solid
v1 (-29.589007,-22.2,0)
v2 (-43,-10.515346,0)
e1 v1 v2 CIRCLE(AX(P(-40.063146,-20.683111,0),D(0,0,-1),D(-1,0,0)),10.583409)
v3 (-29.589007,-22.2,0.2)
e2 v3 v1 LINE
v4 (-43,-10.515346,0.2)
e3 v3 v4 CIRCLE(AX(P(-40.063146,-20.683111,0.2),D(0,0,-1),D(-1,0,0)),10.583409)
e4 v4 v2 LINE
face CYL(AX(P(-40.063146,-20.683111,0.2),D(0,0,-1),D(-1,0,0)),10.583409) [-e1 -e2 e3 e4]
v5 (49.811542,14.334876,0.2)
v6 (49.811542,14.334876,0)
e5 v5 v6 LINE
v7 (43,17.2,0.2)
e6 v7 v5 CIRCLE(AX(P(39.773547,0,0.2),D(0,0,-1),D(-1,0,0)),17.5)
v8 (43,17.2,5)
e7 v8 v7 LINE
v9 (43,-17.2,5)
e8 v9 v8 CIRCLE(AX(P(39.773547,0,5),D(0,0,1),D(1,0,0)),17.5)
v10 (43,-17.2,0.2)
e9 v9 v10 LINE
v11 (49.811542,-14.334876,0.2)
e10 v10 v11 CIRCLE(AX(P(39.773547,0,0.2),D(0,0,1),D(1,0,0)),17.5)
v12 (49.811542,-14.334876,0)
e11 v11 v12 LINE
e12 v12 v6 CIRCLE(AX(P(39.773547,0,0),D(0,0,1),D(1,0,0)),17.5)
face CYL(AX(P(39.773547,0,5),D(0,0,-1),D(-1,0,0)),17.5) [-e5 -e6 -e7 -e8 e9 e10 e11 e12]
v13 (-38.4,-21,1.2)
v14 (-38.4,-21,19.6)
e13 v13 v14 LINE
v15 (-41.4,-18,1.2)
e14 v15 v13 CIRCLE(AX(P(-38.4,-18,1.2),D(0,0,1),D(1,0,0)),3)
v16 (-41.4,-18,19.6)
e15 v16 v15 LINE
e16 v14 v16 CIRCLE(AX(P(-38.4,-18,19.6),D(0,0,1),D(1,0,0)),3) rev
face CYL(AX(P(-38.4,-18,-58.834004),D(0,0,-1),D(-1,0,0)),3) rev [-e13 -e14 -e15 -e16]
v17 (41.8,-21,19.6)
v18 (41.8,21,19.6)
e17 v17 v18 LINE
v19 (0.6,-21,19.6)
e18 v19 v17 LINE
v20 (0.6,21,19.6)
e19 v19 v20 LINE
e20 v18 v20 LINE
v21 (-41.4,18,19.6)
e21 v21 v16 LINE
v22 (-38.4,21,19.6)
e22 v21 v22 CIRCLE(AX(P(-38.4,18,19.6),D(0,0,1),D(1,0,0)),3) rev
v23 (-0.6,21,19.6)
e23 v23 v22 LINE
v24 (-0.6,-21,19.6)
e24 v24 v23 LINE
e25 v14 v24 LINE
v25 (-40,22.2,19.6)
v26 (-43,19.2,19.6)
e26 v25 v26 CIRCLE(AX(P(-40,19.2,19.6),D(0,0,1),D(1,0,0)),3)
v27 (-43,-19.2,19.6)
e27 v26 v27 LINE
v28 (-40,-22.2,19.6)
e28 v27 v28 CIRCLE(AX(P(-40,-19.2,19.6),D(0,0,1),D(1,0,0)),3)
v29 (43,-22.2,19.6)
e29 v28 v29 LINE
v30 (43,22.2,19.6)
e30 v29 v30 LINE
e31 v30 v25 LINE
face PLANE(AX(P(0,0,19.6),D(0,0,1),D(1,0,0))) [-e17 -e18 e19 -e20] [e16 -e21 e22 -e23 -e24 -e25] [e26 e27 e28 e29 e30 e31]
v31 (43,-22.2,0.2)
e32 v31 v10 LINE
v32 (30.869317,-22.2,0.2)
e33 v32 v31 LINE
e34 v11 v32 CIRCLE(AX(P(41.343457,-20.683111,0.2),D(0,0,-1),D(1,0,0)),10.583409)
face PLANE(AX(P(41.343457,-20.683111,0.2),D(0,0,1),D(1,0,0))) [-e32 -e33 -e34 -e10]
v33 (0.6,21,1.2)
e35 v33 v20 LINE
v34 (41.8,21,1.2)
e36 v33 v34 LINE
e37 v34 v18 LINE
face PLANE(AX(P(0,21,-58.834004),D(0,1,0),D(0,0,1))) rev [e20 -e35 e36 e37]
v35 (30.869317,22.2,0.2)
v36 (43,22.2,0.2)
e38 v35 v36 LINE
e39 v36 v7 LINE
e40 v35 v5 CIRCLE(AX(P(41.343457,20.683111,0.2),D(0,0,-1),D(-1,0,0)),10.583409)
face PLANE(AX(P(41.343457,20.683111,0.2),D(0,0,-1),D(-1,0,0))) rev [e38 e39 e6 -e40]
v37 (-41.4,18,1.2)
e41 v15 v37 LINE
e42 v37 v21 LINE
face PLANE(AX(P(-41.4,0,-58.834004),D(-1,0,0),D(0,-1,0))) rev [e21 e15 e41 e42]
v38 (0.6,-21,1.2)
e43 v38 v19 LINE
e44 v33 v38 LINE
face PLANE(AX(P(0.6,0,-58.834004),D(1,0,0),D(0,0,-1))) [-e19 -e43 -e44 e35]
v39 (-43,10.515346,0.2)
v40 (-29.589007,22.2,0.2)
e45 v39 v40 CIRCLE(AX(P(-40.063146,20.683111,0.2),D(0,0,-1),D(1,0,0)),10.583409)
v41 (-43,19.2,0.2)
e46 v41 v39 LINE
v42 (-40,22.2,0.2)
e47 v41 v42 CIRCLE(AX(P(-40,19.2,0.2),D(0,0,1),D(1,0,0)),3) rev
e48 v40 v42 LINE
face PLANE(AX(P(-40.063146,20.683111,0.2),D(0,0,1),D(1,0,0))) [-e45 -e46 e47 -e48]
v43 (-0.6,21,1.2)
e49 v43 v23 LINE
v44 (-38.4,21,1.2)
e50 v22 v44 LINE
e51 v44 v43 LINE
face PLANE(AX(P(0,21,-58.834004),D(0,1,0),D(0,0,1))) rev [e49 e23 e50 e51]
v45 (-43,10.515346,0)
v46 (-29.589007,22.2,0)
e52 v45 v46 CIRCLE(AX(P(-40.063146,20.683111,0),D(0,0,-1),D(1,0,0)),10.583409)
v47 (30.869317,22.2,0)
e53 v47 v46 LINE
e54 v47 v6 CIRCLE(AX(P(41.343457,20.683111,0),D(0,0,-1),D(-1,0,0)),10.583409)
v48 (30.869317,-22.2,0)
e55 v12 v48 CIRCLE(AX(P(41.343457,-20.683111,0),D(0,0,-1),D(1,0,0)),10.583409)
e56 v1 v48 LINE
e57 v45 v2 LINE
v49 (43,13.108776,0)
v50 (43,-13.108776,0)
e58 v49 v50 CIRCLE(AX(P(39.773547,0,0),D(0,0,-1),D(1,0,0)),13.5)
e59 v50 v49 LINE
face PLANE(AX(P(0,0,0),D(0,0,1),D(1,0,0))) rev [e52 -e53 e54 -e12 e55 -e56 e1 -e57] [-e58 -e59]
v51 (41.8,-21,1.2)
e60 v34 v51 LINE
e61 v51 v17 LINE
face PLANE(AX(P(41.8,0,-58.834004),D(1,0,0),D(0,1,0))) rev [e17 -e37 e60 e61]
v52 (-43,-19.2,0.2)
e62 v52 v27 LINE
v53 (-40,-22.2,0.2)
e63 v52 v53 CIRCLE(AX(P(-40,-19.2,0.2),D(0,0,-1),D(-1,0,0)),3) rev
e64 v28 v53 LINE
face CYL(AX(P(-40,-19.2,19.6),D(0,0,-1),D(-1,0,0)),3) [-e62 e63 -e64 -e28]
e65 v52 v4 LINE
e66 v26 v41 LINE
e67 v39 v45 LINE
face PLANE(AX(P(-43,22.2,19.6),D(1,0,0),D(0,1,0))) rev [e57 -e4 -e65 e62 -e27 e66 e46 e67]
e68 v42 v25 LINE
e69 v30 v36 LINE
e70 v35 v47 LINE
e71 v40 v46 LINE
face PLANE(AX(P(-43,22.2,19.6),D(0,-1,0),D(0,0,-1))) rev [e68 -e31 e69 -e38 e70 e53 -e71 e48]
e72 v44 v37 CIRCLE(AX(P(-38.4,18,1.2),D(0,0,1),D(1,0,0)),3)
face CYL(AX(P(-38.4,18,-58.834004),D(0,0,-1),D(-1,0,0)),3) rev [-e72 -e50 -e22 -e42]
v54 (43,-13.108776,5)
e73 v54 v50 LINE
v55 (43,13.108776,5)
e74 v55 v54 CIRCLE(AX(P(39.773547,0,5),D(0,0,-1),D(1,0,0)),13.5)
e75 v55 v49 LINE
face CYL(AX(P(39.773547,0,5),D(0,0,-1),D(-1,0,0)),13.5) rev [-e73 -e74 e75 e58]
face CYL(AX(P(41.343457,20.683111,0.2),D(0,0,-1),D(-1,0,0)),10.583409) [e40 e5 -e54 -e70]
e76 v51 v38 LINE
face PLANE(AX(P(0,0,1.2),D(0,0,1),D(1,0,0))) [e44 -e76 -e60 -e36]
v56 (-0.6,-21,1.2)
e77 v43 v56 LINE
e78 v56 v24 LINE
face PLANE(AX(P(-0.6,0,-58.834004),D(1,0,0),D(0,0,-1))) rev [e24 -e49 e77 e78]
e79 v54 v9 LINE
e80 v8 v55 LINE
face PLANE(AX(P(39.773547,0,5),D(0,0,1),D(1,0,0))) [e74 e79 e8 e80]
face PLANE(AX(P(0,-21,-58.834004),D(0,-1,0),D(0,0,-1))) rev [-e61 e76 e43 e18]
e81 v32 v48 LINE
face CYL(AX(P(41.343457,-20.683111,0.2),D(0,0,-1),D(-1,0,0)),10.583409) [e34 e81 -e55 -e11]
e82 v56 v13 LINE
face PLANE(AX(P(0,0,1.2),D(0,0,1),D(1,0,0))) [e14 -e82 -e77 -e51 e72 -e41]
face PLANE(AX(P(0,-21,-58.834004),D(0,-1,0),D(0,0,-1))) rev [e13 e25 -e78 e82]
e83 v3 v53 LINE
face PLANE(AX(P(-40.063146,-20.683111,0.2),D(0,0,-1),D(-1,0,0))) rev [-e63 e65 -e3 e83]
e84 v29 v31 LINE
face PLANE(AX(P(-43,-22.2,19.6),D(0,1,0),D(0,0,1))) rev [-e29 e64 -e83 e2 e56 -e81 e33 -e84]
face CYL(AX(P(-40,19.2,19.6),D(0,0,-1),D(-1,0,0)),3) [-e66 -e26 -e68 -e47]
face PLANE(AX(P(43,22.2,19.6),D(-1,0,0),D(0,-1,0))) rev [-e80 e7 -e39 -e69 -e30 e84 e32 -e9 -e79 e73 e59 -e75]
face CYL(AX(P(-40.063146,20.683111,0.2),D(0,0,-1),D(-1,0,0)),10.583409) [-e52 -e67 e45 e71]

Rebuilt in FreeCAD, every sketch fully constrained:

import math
import FreeCAD as App
import Part
import Sketcher
from FreeCAD import Vector
Q = App.Units.Quantity


def edges_at(feature, points):
    """Names of the edges that pass closest to the given points."""
    edges = feature.Shape.Edges
    near = lambda p: min(range(len(edges)), key=lambda i: edges[i].distToShape(Part.Vertex(*p))[0])
    return sorted({f"Edge{near(p) + 1}" for p in points})


def add_polygon(sketch, points):
    """Adds a closed chain of lines whose ends are joined by coincident constraints."""
    first, n = sketch.GeometryCount, len(points)
    for a, b in zip(points, points[1:] + points[:1]):
        sketch.addGeometry(Part.LineSegment(App.Vector(*a, 0), App.Vector(*b, 0)), False)
    for i in range(n):
        sketch.addConstraint(Sketcher.Constraint("Coincident", first + i, 2, first + (i + 1) % n, 1))

doc = App.newDocument("Part")
params = doc.addObject("Spreadsheet::Sheet", "Params")
for row, (alias, value) in enumerate([
    ("sketch1_width", "86 mm"),
    ("sketch1_height", "44.4 mm"),
    ("pad1_length", "19.6 mm"),
    ("sketch2_radius", "13.5 mm"),
    ("sketch2_radius2", "17.5 mm"),
    ("pad2_length", "5 mm"),
    ("sketch3_height", "42 mm"),
    ("sketch3_width", "40.8 mm"),
    ("sketch3_width2", "41.2 mm"),
    ("pocket1_length", "18.4 mm"),
    ("fillet_radius", "3 mm"),
    ("pad3_length", "0.2 mm"),
], start=1):
    params.set(f"A{row}", alias)
    params.set(f"B{row}", "=" + value)
    params.setAlias(f"B{row}", alias)

body = doc.addObject("PartDesign::Body", "Body")

sketch1 = body.newObject("Sketcher::SketchObject", "Sketch")
sketch1.AttachmentSupport = (doc.getObject("XY_Plane"), [""])
sketch1.MapMode = "FlatFace"
add_polygon(sketch1, [(-43, 22), (-43, -22), (43, -22), (43, 22)])
sketch1.addConstraint(Sketcher.Constraint("Vertical", 0))
sketch1.addConstraint(Sketcher.Constraint("Horizontal", 1))
sketch1.addConstraint(Sketcher.Constraint("Vertical", 2))
sketch1.addConstraint(Sketcher.Constraint("Horizontal", 3))
sketch1.addConstraint(Sketcher.Constraint("Symmetric", 0, 2, 2, 2, -1, 1))
sketch1.addConstraint(Sketcher.Constraint("DistanceX", 1, 1, 1, 2, Q("86 mm")))
sketch1.addConstraint(Sketcher.Constraint("DistanceY", 0, 2, 0, 1, Q("44.4 mm")))
sketch1.setExpression("Constraints[9]", "Params.sketch1_width")
sketch1.setExpression("Constraints[10]", "Params.sketch1_height")
pad1 = body.newObject("PartDesign::Pad", "Pad")
pad1.Profile = sketch1
pad1.setExpression("Length", "Params.pad1_length")

sketch2 = body.newObject("Sketcher::SketchObject", "Sketch001")
sketch2.AttachmentSupport = (doc.getObject("XY_Plane"), [""])
sketch2.MapMode = "FlatFace"
sketch2.addGeometry(Part.LineSegment(Vector(43, 17.2, 0), Vector(43, 13.1, 0)), False)
sketch2.addGeometry(Part.ArcOfCircle(Part.Circle(Vector(39.8, 0, 0), Vector(0, 0, 1), 13.5), math.radians(-76), math.radians(76)), False)
sketch2.addGeometry(Part.LineSegment(Vector(43, -13.1, 0), Vector(43, -17.2, 0)), False)
sketch2.addGeometry(Part.ArcOfCircle(Part.Circle(Vector(39.8, 0, 0), Vector(0, 0, 1), 17.5), math.radians(-79), math.radians(79)), False)
sketch2.addConstraint(Sketcher.Constraint("Coincident", 0, 2, 1, 2))
sketch2.addConstraint(Sketcher.Constraint("Coincident", 1, 1, 2, 1))
sketch2.addConstraint(Sketcher.Constraint("Coincident", 2, 2, 3, 1))
sketch2.addConstraint(Sketcher.Constraint("Coincident", 3, 2, 0, 1))
sketch2.addConstraint(Sketcher.Constraint("Vertical", 0))
sketch2.addConstraint(Sketcher.Constraint("Vertical", 2))
sketch2.addConstraint(Sketcher.Constraint("Coincident", 3, 3, 1, 3))
sketch2.addConstraint(Sketcher.Constraint("Symmetric", 0, 2, 1, 1, -1))
sketch2.addConstraint(Sketcher.Constraint("Radius", 1, Q("13.5 mm")))
sketch2.addConstraint(Sketcher.Constraint("Radius", 3, Q("17.5 mm")))
sketch2.addConstraint(Sketcher.Constraint("DistanceX", -1, 1, 0, 2, Q("43 mm")))
sketch2.addConstraint(Sketcher.Constraint("DistanceY", 2, 2, -1, 1, Q("17.2 mm")))
sketch2.setExpression("Constraints[8]", "Params.sketch2_radius")
sketch2.setExpression("Constraints[9]", "Params.sketch2_radius2")
pad2 = body.newObject("PartDesign::Pad", "Pad001")
pad2.Profile = sketch2
pad2.setExpression("Length", "Params.pad2_length")

sketch3 = body.newObject("Sketcher::SketchObject", "Sketch002")
sketch3.AttachmentSupport = (doc.getObject("XY_Plane"), [""])
sketch3.MapMode = "FlatFace"
sketch3.AttachmentOffset = App.Placement(Vector(0, 0, 19.6), App.Rotation())
add_polygon(sketch3, [(-41, 21), (-41, -21), (-1, -21), (-1, 21)])
add_polygon(sketch3, [(1, 21), (1, -21), (42, -21), (42, 21)])
sketch3.addConstraint(Sketcher.Constraint("Vertical", 0))
sketch3.addConstraint(Sketcher.Constraint("Horizontal", 1))
sketch3.addConstraint(Sketcher.Constraint("Vertical", 2))
sketch3.addConstraint(Sketcher.Constraint("Horizontal", 3))
sketch3.addConstraint(Sketcher.Constraint("Vertical", 4))
sketch3.addConstraint(Sketcher.Constraint("Horizontal", 5))
sketch3.addConstraint(Sketcher.Constraint("Vertical", 6))
sketch3.addConstraint(Sketcher.Constraint("Horizontal", 7))
sketch3.addConstraint(Sketcher.Constraint("Symmetric", 2, 2, 4, 2, -1, 1))
sketch3.addConstraint(Sketcher.Constraint("Horizontal", 1, 2, 4, 2))
sketch3.addConstraint(Sketcher.Constraint("Horizontal", 3, 2, 6, 2))
sketch3.addConstraint(Sketcher.Constraint("DistanceY", 0, 2, 0, 1, Q("42 mm")))
sketch3.addConstraint(Sketcher.Constraint("DistanceX", 1, 1, 1, 2, Q("40.8 mm")))
sketch3.addConstraint(Sketcher.Constraint("DistanceX", 5, 1, 5, 2, Q("41.2 mm")))
sketch3.addConstraint(Sketcher.Constraint("DistanceX", 0, 2, 4, 2, Q("42 mm")))
sketch3.setExpression("Constraints[19]", "Params.sketch3_height")
sketch3.setExpression("Constraints[20]", "Params.sketch3_width")
sketch3.setExpression("Constraints[21]", "Params.sketch3_width2")
pocket1 = body.newObject("PartDesign::Pocket", "Pocket")
pocket1.Profile = sketch3
pocket1.setExpression("Length", "Params.pocket1_length")
doc.recompute()

fillet = body.newObject("PartDesign::Fillet", "Fillet")
fillet.Base = (pocket1, edges_at(pocket1, [
    (-41.4, -21, 10.4),
    (-41.4, 21, 10.4),
    (-43, -22.2, 9.8),
    (-43, 22.2, 9.8),
]))
fillet.setExpression("Radius", "Params.fillet_radius")

sketch4 = body.newObject("Sketcher::SketchObject", "Sketch003")
sketch4.AttachmentSupport = (doc.getObject("XY_Plane"), [""])
sketch4.MapMode = "FlatFace"
sketch4.addGeometry(Part.LineSegment(Vector(50, 14, 0), Vector(31, 22, 0)), False)
sketch4.addGeometry(Part.ArcOfCircle(Part.Circle(Vector(41, 21, 0), Vector(0, 0, 1), 11), math.radians(-37), math.radians(172)), False)
sketch4.addGeometry(Part.LineSegment(Vector(-30, 22, 0), Vector(-43, 11, 0)), False)
sketch4.addGeometry(Part.ArcOfCircle(Part.Circle(Vector(-40, 21, 0), Vector(0, 0, 1), 11), math.radians(8), math.radians(254)), False)
sketch4.addGeometry(Part.LineSegment(Vector(-43, -11, 0), Vector(-30, -22, 0)), False)
sketch4.addGeometry(Part.ArcOfCircle(Part.Circle(Vector(-40, -21, 0), Vector(0, 0, 1), 11), math.radians(106), math.radians(352)), False)
sketch4.addGeometry(Part.LineSegment(Vector(31, -22, 0), Vector(50, -14, 0)), False)
sketch4.addGeometry(Part.ArcOfCircle(Part.Circle(Vector(41, -21, 0), Vector(0, 0, 1), 11), math.radians(-172), math.radians(37)), False)
sketch4.addConstraint(Sketcher.Constraint("Coincident", 0, 1, 1, 1))
sketch4.addConstraint(Sketcher.Constraint("Coincident", 1, 2, 0, 2))
sketch4.addConstraint(Sketcher.Constraint("Coincident", 2, 1, 3, 1))
sketch4.addConstraint(Sketcher.Constraint("Coincident", 3, 2, 2, 2))
sketch4.addConstraint(Sketcher.Constraint("Coincident", 4, 1, 5, 1))
sketch4.addConstraint(Sketcher.Constraint("Coincident", 5, 2, 4, 2))
sketch4.addConstraint(Sketcher.Constraint("Coincident", 6, 1, 7, 1))
sketch4.addConstraint(Sketcher.Constraint("Coincident", 7, 2, 6, 2))
sketch4.addConstraint(Sketcher.Constraint("Equal", 1, 3))
sketch4.addConstraint(Sketcher.Constraint("Equal", 3, 5))
sketch4.addConstraint(Sketcher.Constraint("Equal", 5, 7))
sketch4.addConstraint(Sketcher.Constraint("Symmetric", 3, 3, 5, 3, -1))
sketch4.addConstraint(Sketcher.Constraint("Symmetric", 1, 3, 7, 3, -1))
sketch4.addConstraint(Sketcher.Constraint("Horizontal", 1, 3, 3, 3))
sketch4.addConstraint(Sketcher.Constraint("Horizontal", 1, 2, 2, 1))
sketch4.addConstraint(Sketcher.Constraint("Horizontal", 5, 2, 6, 1))
sketch4.addConstraint(Sketcher.Constraint("Vertical", 3, 2, 4, 1))
sketch4.addConstraint(Sketcher.Constraint("Vertical", 2, 1, 5, 2))
sketch4.addConstraint(Sketcher.Constraint("Vertical", 0, 1, 7, 2))
sketch4.addConstraint(Sketcher.Constraint("DistanceX", 3, 2, -1, 1, Q("43 mm")))
sketch4.addConstraint(Sketcher.Constraint("DistanceY", -1, 1, 1, 2, Q("22.2 mm")))
sketch4.addConstraint(Sketcher.Constraint("Radius", 1, Q("10.583409 mm")))
sketch4.addConstraint(Sketcher.Constraint("Distance", 2, Q("17.787239 mm")))
sketch4.addConstraint(Sketcher.Constraint("DistanceY", -1, 1, 1, 3, Q("20.683111 mm")))
sketch4.addConstraint(Sketcher.Constraint("DistanceX", -1, 1, 0, 1, Q("49.811542 mm")))
sketch4.addConstraint(Sketcher.Constraint("DistanceY", 7, 2, 0, 1, Q("28.669751 mm")))
pad3 = body.newObject("PartDesign::Pad", "Pad002")
pad3.Profile = sketch4
pad3.setExpression("Length", "Params.pad3_length")

doc.recompute()
